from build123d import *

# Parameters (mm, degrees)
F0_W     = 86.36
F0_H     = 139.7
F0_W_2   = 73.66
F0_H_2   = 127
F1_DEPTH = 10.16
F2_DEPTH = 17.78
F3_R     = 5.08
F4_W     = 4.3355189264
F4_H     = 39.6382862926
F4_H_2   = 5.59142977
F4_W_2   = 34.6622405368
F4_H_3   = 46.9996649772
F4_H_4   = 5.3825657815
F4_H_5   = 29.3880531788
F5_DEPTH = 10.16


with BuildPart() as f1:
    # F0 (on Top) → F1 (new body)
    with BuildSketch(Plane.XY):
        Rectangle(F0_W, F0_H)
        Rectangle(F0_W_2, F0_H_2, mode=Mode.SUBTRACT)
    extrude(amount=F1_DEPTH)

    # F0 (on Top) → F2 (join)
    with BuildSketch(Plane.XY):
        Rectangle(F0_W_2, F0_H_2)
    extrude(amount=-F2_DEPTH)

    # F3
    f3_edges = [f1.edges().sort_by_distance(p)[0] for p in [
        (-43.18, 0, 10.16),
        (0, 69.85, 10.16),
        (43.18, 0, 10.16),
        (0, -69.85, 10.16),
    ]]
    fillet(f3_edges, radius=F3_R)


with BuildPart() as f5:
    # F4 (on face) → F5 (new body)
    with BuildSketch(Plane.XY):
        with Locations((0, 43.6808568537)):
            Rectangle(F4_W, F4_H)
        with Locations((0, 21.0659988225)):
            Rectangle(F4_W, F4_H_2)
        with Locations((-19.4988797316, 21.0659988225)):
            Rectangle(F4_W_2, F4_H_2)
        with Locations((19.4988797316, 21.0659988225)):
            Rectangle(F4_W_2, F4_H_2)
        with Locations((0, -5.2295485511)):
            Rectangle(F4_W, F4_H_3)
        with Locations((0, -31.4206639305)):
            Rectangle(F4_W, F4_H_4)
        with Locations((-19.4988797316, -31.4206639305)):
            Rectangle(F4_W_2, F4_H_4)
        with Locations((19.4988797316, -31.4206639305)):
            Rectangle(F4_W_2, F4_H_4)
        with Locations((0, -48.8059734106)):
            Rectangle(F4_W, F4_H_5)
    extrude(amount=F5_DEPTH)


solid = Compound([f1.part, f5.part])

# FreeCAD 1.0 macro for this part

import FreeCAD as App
import Part
import Sketcher
Q = App.Units.Quantity


def edges_at(feature, points):
    """Names of the edges that pass closest to the given points."""
    edges = feature.Shape.Edges
    near = lambda p: min(range(len(edges)), key=lambda i: edges[i].distToShape(Part.Vertex(*p))[0])
    return sorted({f"Edge{near(p) + 1}" for p in points})


def add_polygon(sketch, points):
    """Adds a closed chain of lines whose ends are joined by coincident constraints."""
    first, n = sketch.GeometryCount, len(points)
    for a, b in zip(points, points[1:] + points[:1]):
        sketch.addGeometry(Part.LineSegment(App.Vector(*a, 0), App.Vector(*b, 0)), False)
    for i in range(n):
        sketch.addConstraint(Sketcher.Constraint("Coincident", first + i, 2, first + (i + 1) % n, 1))

doc = App.newDocument("Part")
body = doc.addObject("PartDesign::Body", "Body")
body.AllowCompound = True

# Sketch on XY plane
sketch1 = body.newObject("Sketcher::SketchObject", "Sketch")
sketch1.AttachmentSupport = (doc.getObject("XY_Plane"), [""])
sketch1.MapMode = "FlatFace"
add_polygon(sketch1, [(-43, 70), (-43, -70), (43, -70), (43, 70)])  # lines 0-3
add_polygon(sketch1, [(37, -64), (-37, -64), (-37, 64), (37, 64)])  # lines 4-7
sketch1.addConstraint([
    Sketcher.Constraint("Vertical", 0),
    Sketcher.Constraint("Horizontal", 1),
    Sketcher.Constraint("Vertical", 2),
    Sketcher.Constraint("Horizontal", 3),
    Sketcher.Constraint("Horizontal", 4),
    Sketcher.Constraint("Vertical", 5),
    Sketcher.Constraint("Horizontal", 6),
    Sketcher.Constraint("Vertical", 7),
    Sketcher.Constraint("Symmetric", 0, 2, 2, 2, -1, 1),
    Sketcher.Constraint("Symmetric", 4, 2, 6, 2, -1, 1),
    Sketcher.Constraint("DistanceY", 5, 1, 5, 2, Q("5 in")),
    Sketcher.Constraint("DistanceX", 1, 1, 1, 2, Q("3.4 in")),
    Sketcher.Constraint("DistanceX", 4, 2, 4, 1, Q("2.9 in")),
    Sketcher.Constraint("DistanceY", 0, 2, 0, 1, Q("5.5 in")),
])
pad1 = body.newObject("PartDesign::Pad", "Pad")
pad1.Profile = sketch1
pad1.Length = Q("0.4 in")

# Sketch on XY plane
sketch2 = body.newObject("Sketcher::SketchObject", "Sketch001")
sketch2.AttachmentSupport = (doc.getObject("XY_Plane"), [""])
sketch2.MapMode = "FlatFace"
add_polygon(sketch2, [(-37, 64), (-37, -64), (37, -64), (37, 64)])  # lines 0-3
sketch2.addConstraint([
    Sketcher.Constraint("Vertical", 0),
    Sketcher.Constraint("Horizontal", 1),
    Sketcher.Constraint("Vertical", 2),
    Sketcher.Constraint("Horizontal", 3),
    Sketcher.Constraint("Symmetric", 0, 2, 2, 2, -1, 1),
    Sketcher.Constraint("DistanceY", 0, 2, 0, 1, Q("5 in")),
    Sketcher.Constraint("DistanceX", 1, 1, 1, 2, Q("2.9 in")),
])
pad2 = body.newObject("PartDesign::Pad", "Pad001")
pad2.Profile = sketch2
pad2.Length = Q("0.7 in")
pad2.Reversed = True
doc.recompute()

fillet = body.newObject("PartDesign::Fillet", "Fillet")
fillet.Base = (pad2, edges_at(pad2, [
    (-43.18, 0, 10.16),
    (0, 69.85, 10.16),
    (43.18, 0, 10.16),
    (0, -69.85, 10.16),
]))
fillet.Radius = Q("0.2 in")
body2 = doc.addObject("PartDesign::Body", "Body001")

# Sketch on XY plane
sketch3 = body2.newObject("Sketcher::SketchObject", "Sketch002")
sketch3.AttachmentSupport = (doc.getObject("XY_Plane001"), [""])
sketch3.MapMode = "FlatFace"
add_polygon(sketch3, [(-2.2, 63.5), (-2.2, 23.9), (-36.8, 23.9), (-36.8, 18.3), (-2.2, 18.3), (-2.2, -28.7), (-36.8, -28.7), (-36.8, -34.1), (-2.2, -34.1), (-2.2, -63.5), (2.2, -63.5), (2.2, -34.1), (36.8, -34.1), (36.8, -28.7), (2.2, -28.7), (2.2, 18.3), (36.8, 18.3), (36.8, 23.9), (2.2, 23.9), (2.2, 63.5)])  # lines 0-19
sketch3.addConstraint([
    Sketcher.Constraint("Vertical", 0),
    Sketcher.Constraint("Horizontal", 1),
    Sketcher.Constraint("Vertical", 2),
    Sketcher.Constraint("Horizontal", 3),
    Sketcher.Constraint("Vertical", 4),
    Sketcher.Constraint("Horizontal", 5),
    Sketcher.Constraint("Vertical", 6),
    Sketcher.Constraint("Horizontal", 7),
    Sketcher.Constraint("Vertical", 8),
    Sketcher.Constraint("Horizontal", 9),
    Sketcher.Constraint("Vertical", 10),
    Sketcher.Constraint("Horizontal", 11),
    Sketcher.Constraint("Vertical", 12),
    Sketcher.Constraint("Horizontal", 13),
    Sketcher.Constraint("Vertical", 14),
    Sketcher.Constraint("Horizontal", 15),
    Sketcher.Constraint("Vertical", 16),
    Sketcher.Constraint("Horizontal", 17),
    Sketcher.Constraint("Vertical", 18),
    Sketcher.Constraint("Horizontal", 19),
    Sketcher.Constraint("Symmetric", 8, 2, 18, 2, -1, 1),
    Sketcher.Constraint("Symmetric", 7, 2, 10, 2, -2),
    Sketcher.Constraint("Symmetric", 5, 2, 12, 2, -2),
    Sketcher.Constraint("Symmetric", 3, 2, 14, 2, -2),
    Sketcher.Constraint("Symmetric", 1, 2, 16, 2, -2),
    Sketcher.Constraint("Vertical", 0, 2, 3, 2),
    Sketcher.Constraint("Vertical", 2, 2, 5, 2),
    Sketcher.Constraint("Vertical", 4, 2, 7, 2),
    Sketcher.Constraint("DistanceY", 8, 2, -1, 1, Q("2.5 in")),
    Sketcher.Constraint("DistanceX", 1, 2, -1, 1, Q("1.45 in")),
    Sketcher.Constraint("DistanceX", 1, 2, 1, 1, 34.662241),
    Sketcher.Constraint("DistanceY", 2, 2, 2, 1, 5.59143),
    Sketcher.Constraint("DistanceY", 0, 2, 0, 1, 39.638286),
    Sketcher.Constraint("DistanceY", 4, 2, 4, 1, 46.999665),
    Sketcher.Constraint("DistanceY", 6, 2, 6, 1, 5.382566),
])
pad3 = body2.newObject("PartDesign::Pad", "Pad002")
pad3.Profile = sketch3
pad3.Length = Q("0.4 in")

doc.recompute()
